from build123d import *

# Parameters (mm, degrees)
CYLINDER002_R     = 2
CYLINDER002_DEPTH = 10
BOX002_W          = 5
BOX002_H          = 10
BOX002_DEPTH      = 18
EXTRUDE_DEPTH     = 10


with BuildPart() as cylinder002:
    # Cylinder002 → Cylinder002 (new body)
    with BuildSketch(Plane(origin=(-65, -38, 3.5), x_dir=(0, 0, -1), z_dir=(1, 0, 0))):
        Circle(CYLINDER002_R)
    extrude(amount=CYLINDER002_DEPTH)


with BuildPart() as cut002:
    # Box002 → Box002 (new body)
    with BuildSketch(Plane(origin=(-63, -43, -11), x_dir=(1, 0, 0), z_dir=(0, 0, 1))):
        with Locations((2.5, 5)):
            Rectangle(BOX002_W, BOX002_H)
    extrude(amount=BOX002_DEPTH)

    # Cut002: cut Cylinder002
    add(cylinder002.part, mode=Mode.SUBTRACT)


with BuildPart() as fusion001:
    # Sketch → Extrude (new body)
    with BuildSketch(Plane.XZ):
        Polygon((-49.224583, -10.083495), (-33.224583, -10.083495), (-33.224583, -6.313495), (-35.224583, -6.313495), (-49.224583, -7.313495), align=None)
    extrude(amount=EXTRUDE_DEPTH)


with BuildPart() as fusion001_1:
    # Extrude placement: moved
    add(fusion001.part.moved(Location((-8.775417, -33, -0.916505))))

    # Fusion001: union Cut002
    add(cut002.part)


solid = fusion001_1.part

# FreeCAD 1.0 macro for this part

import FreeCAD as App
import Part
import Sketcher

V = App.Vector
Q = App.Units.Quantity


def add_polygon(sketch, points):
    """Adds a closed chain of lines whose ends are joined by coincident constraints."""
    first, n = sketch.GeometryCount, len(points)
    for a, b in zip(points, points[1:] + points[:1]):
        sketch.addGeometry(Part.LineSegment(App.Vector(*a, 0), App.Vector(*b, 0)), False)
    for i in range(n):
        sketch.addConstraint(Sketcher.Constraint("Coincident", first + i, 2, first + (i + 1) % n, 1))

doc = App.newDocument("Part")
body = doc.addObject("PartDesign::Body", "Body")

sketch1 = body.newObject("Sketcher::SketchObject", "Sketch")
sketch1.AttachmentSupport = (doc.getObject("YZ_Plane"), [""])
sketch1.MapMode = "FlatFace"
sketch1.AttachmentOffset = App.Placement(V(0, 0, -65), App.Rotation())
sketch1.addGeometry(Part.Circle(V(-38, 3.5, 0), V(0, 0, 1), 2), False)
sketch1.addConstraint(Sketcher.Constraint("Diameter", 0, Q("4 mm")))
sketch1.addConstraint(Sketcher.Constraint("DistanceX", 0, 3, -1, 1, Q("38 mm")))
sketch1.addConstraint(Sketcher.Constraint("DistanceY", -1, 1, 0, 3, Q("3.5 mm")))
pad1 = body.newObject("PartDesign::Pad", "Pad")
pad1.Profile = sketch1
pad1.Length = 10
body2 = doc.addObject("PartDesign::Body", "Body001")

sketch2 = body2.newObject("Sketcher::SketchObject", "Sketch001")
sketch2.AttachmentSupport = (doc.getObject("XY_Plane001"), [""])
sketch2.MapMode = "FlatFace"
sketch2.AttachmentOffset = App.Placement(V(0, 0, -11), App.Rotation())
add_polygon(sketch2, [(-63, -33), (-63, -43), (-58, -43), (-58, -33)])
sketch2.addConstraint(Sketcher.Constraint("Vertical", 0))
sketch2.addConstraint(Sketcher.Constraint("Horizontal", 1))
sketch2.addConstraint(Sketcher.Constraint("Vertical", 2))
sketch2.addConstraint(Sketcher.Constraint("Horizontal", 3))
sketch2.addConstraint(Sketcher.Constraint("DistanceX", 1, 1, 1, 2, Q("5 mm")))
sketch2.addConstraint(Sketcher.Constraint("DistanceY", 0, 2, 0, 1, Q("10 mm")))
sketch2.addConstraint(Sketcher.Constraint("DistanceX", 0, 2, -1, 1, Q("63 mm")))
sketch2.addConstraint(Sketcher.Constraint("DistanceY", 0, 2, -1, 1, Q("43 mm")))
pad2 = body2.newObject("PartDesign::Pad", "Pad001")
pad2.Profile = sketch2
pad2.Length = 18
doc.recompute()

boolean = body2.newObject("PartDesign::Boolean", "Boolean")
boolean.Type = "Cut"
boolean.addObjects([body])
body3 = doc.addObject("PartDesign::Body", "Body002")

sketch3 = body3.newObject("Sketcher::SketchObject", "Sketch002")
sketch3.AttachmentSupport = (doc.getObject("XZ_Plane002"), [""])
sketch3.MapMode = "FlatFace"
add_polygon(sketch3, [(-49.2, -10.1), (-33.2, -10.1), (-33.2, -6.3), (-35.2, -6.3), (-49.2, -7.3)])
sketch3.addConstraint(Sketcher.Constraint("Horizontal", 0))
sketch3.addConstraint(Sketcher.Constraint("Vertical", 1))
sketch3.addConstraint(Sketcher.Constraint("Horizontal", 2))
sketch3.addConstraint(Sketcher.Constraint("Vertical", 4))
sketch3.addConstraint(Sketcher.Constraint("DistanceX", 0, 1, 0, 2, Q("16 mm")))
sketch3.addConstraint(Sketcher.Constraint("DistanceX", 2, 2, 2, 1, Q("2 mm")))
sketch3.addConstraint(Sketcher.Constraint("DistanceY", 3, 2, 2, 2, Q("1 mm")))
sketch3.addConstraint(Sketcher.Constraint("DistanceY", 1, 1, 1, 2, Q("3.77 mm")))
sketch3.addConstraint(Sketcher.Constraint("DistanceX", 0, 2, -1, 1, Q("33.224583 mm")))
sketch3.addConstraint(Sketcher.Constraint("DistanceY", 0, 2, -1, 1, Q("10.083495 mm")))
pad3 = body3.newObject("PartDesign::Pad", "Pad002")
pad3.Profile = sketch3
pad3.Length = 10
body4 = doc.addObject("PartDesign::Body", "Body003")
doc.recompute()

body3.Placement = App.Placement(V(-8.775417, -33, -0.916505), App.Rotation(V(0, 0, 1), 0))
boolean2 = body4.newObject("PartDesign::Boolean", "Boolean001")
boolean2.Type = "Fuse"
boolean2.addObjects([body3])
doc.recompute()

boolean3 = body4.newObject("PartDesign::Boolean", "Boolean002")
boolean3.Type = "Fuse"
boolean3.addObjects([body2])

doc.recompute()
